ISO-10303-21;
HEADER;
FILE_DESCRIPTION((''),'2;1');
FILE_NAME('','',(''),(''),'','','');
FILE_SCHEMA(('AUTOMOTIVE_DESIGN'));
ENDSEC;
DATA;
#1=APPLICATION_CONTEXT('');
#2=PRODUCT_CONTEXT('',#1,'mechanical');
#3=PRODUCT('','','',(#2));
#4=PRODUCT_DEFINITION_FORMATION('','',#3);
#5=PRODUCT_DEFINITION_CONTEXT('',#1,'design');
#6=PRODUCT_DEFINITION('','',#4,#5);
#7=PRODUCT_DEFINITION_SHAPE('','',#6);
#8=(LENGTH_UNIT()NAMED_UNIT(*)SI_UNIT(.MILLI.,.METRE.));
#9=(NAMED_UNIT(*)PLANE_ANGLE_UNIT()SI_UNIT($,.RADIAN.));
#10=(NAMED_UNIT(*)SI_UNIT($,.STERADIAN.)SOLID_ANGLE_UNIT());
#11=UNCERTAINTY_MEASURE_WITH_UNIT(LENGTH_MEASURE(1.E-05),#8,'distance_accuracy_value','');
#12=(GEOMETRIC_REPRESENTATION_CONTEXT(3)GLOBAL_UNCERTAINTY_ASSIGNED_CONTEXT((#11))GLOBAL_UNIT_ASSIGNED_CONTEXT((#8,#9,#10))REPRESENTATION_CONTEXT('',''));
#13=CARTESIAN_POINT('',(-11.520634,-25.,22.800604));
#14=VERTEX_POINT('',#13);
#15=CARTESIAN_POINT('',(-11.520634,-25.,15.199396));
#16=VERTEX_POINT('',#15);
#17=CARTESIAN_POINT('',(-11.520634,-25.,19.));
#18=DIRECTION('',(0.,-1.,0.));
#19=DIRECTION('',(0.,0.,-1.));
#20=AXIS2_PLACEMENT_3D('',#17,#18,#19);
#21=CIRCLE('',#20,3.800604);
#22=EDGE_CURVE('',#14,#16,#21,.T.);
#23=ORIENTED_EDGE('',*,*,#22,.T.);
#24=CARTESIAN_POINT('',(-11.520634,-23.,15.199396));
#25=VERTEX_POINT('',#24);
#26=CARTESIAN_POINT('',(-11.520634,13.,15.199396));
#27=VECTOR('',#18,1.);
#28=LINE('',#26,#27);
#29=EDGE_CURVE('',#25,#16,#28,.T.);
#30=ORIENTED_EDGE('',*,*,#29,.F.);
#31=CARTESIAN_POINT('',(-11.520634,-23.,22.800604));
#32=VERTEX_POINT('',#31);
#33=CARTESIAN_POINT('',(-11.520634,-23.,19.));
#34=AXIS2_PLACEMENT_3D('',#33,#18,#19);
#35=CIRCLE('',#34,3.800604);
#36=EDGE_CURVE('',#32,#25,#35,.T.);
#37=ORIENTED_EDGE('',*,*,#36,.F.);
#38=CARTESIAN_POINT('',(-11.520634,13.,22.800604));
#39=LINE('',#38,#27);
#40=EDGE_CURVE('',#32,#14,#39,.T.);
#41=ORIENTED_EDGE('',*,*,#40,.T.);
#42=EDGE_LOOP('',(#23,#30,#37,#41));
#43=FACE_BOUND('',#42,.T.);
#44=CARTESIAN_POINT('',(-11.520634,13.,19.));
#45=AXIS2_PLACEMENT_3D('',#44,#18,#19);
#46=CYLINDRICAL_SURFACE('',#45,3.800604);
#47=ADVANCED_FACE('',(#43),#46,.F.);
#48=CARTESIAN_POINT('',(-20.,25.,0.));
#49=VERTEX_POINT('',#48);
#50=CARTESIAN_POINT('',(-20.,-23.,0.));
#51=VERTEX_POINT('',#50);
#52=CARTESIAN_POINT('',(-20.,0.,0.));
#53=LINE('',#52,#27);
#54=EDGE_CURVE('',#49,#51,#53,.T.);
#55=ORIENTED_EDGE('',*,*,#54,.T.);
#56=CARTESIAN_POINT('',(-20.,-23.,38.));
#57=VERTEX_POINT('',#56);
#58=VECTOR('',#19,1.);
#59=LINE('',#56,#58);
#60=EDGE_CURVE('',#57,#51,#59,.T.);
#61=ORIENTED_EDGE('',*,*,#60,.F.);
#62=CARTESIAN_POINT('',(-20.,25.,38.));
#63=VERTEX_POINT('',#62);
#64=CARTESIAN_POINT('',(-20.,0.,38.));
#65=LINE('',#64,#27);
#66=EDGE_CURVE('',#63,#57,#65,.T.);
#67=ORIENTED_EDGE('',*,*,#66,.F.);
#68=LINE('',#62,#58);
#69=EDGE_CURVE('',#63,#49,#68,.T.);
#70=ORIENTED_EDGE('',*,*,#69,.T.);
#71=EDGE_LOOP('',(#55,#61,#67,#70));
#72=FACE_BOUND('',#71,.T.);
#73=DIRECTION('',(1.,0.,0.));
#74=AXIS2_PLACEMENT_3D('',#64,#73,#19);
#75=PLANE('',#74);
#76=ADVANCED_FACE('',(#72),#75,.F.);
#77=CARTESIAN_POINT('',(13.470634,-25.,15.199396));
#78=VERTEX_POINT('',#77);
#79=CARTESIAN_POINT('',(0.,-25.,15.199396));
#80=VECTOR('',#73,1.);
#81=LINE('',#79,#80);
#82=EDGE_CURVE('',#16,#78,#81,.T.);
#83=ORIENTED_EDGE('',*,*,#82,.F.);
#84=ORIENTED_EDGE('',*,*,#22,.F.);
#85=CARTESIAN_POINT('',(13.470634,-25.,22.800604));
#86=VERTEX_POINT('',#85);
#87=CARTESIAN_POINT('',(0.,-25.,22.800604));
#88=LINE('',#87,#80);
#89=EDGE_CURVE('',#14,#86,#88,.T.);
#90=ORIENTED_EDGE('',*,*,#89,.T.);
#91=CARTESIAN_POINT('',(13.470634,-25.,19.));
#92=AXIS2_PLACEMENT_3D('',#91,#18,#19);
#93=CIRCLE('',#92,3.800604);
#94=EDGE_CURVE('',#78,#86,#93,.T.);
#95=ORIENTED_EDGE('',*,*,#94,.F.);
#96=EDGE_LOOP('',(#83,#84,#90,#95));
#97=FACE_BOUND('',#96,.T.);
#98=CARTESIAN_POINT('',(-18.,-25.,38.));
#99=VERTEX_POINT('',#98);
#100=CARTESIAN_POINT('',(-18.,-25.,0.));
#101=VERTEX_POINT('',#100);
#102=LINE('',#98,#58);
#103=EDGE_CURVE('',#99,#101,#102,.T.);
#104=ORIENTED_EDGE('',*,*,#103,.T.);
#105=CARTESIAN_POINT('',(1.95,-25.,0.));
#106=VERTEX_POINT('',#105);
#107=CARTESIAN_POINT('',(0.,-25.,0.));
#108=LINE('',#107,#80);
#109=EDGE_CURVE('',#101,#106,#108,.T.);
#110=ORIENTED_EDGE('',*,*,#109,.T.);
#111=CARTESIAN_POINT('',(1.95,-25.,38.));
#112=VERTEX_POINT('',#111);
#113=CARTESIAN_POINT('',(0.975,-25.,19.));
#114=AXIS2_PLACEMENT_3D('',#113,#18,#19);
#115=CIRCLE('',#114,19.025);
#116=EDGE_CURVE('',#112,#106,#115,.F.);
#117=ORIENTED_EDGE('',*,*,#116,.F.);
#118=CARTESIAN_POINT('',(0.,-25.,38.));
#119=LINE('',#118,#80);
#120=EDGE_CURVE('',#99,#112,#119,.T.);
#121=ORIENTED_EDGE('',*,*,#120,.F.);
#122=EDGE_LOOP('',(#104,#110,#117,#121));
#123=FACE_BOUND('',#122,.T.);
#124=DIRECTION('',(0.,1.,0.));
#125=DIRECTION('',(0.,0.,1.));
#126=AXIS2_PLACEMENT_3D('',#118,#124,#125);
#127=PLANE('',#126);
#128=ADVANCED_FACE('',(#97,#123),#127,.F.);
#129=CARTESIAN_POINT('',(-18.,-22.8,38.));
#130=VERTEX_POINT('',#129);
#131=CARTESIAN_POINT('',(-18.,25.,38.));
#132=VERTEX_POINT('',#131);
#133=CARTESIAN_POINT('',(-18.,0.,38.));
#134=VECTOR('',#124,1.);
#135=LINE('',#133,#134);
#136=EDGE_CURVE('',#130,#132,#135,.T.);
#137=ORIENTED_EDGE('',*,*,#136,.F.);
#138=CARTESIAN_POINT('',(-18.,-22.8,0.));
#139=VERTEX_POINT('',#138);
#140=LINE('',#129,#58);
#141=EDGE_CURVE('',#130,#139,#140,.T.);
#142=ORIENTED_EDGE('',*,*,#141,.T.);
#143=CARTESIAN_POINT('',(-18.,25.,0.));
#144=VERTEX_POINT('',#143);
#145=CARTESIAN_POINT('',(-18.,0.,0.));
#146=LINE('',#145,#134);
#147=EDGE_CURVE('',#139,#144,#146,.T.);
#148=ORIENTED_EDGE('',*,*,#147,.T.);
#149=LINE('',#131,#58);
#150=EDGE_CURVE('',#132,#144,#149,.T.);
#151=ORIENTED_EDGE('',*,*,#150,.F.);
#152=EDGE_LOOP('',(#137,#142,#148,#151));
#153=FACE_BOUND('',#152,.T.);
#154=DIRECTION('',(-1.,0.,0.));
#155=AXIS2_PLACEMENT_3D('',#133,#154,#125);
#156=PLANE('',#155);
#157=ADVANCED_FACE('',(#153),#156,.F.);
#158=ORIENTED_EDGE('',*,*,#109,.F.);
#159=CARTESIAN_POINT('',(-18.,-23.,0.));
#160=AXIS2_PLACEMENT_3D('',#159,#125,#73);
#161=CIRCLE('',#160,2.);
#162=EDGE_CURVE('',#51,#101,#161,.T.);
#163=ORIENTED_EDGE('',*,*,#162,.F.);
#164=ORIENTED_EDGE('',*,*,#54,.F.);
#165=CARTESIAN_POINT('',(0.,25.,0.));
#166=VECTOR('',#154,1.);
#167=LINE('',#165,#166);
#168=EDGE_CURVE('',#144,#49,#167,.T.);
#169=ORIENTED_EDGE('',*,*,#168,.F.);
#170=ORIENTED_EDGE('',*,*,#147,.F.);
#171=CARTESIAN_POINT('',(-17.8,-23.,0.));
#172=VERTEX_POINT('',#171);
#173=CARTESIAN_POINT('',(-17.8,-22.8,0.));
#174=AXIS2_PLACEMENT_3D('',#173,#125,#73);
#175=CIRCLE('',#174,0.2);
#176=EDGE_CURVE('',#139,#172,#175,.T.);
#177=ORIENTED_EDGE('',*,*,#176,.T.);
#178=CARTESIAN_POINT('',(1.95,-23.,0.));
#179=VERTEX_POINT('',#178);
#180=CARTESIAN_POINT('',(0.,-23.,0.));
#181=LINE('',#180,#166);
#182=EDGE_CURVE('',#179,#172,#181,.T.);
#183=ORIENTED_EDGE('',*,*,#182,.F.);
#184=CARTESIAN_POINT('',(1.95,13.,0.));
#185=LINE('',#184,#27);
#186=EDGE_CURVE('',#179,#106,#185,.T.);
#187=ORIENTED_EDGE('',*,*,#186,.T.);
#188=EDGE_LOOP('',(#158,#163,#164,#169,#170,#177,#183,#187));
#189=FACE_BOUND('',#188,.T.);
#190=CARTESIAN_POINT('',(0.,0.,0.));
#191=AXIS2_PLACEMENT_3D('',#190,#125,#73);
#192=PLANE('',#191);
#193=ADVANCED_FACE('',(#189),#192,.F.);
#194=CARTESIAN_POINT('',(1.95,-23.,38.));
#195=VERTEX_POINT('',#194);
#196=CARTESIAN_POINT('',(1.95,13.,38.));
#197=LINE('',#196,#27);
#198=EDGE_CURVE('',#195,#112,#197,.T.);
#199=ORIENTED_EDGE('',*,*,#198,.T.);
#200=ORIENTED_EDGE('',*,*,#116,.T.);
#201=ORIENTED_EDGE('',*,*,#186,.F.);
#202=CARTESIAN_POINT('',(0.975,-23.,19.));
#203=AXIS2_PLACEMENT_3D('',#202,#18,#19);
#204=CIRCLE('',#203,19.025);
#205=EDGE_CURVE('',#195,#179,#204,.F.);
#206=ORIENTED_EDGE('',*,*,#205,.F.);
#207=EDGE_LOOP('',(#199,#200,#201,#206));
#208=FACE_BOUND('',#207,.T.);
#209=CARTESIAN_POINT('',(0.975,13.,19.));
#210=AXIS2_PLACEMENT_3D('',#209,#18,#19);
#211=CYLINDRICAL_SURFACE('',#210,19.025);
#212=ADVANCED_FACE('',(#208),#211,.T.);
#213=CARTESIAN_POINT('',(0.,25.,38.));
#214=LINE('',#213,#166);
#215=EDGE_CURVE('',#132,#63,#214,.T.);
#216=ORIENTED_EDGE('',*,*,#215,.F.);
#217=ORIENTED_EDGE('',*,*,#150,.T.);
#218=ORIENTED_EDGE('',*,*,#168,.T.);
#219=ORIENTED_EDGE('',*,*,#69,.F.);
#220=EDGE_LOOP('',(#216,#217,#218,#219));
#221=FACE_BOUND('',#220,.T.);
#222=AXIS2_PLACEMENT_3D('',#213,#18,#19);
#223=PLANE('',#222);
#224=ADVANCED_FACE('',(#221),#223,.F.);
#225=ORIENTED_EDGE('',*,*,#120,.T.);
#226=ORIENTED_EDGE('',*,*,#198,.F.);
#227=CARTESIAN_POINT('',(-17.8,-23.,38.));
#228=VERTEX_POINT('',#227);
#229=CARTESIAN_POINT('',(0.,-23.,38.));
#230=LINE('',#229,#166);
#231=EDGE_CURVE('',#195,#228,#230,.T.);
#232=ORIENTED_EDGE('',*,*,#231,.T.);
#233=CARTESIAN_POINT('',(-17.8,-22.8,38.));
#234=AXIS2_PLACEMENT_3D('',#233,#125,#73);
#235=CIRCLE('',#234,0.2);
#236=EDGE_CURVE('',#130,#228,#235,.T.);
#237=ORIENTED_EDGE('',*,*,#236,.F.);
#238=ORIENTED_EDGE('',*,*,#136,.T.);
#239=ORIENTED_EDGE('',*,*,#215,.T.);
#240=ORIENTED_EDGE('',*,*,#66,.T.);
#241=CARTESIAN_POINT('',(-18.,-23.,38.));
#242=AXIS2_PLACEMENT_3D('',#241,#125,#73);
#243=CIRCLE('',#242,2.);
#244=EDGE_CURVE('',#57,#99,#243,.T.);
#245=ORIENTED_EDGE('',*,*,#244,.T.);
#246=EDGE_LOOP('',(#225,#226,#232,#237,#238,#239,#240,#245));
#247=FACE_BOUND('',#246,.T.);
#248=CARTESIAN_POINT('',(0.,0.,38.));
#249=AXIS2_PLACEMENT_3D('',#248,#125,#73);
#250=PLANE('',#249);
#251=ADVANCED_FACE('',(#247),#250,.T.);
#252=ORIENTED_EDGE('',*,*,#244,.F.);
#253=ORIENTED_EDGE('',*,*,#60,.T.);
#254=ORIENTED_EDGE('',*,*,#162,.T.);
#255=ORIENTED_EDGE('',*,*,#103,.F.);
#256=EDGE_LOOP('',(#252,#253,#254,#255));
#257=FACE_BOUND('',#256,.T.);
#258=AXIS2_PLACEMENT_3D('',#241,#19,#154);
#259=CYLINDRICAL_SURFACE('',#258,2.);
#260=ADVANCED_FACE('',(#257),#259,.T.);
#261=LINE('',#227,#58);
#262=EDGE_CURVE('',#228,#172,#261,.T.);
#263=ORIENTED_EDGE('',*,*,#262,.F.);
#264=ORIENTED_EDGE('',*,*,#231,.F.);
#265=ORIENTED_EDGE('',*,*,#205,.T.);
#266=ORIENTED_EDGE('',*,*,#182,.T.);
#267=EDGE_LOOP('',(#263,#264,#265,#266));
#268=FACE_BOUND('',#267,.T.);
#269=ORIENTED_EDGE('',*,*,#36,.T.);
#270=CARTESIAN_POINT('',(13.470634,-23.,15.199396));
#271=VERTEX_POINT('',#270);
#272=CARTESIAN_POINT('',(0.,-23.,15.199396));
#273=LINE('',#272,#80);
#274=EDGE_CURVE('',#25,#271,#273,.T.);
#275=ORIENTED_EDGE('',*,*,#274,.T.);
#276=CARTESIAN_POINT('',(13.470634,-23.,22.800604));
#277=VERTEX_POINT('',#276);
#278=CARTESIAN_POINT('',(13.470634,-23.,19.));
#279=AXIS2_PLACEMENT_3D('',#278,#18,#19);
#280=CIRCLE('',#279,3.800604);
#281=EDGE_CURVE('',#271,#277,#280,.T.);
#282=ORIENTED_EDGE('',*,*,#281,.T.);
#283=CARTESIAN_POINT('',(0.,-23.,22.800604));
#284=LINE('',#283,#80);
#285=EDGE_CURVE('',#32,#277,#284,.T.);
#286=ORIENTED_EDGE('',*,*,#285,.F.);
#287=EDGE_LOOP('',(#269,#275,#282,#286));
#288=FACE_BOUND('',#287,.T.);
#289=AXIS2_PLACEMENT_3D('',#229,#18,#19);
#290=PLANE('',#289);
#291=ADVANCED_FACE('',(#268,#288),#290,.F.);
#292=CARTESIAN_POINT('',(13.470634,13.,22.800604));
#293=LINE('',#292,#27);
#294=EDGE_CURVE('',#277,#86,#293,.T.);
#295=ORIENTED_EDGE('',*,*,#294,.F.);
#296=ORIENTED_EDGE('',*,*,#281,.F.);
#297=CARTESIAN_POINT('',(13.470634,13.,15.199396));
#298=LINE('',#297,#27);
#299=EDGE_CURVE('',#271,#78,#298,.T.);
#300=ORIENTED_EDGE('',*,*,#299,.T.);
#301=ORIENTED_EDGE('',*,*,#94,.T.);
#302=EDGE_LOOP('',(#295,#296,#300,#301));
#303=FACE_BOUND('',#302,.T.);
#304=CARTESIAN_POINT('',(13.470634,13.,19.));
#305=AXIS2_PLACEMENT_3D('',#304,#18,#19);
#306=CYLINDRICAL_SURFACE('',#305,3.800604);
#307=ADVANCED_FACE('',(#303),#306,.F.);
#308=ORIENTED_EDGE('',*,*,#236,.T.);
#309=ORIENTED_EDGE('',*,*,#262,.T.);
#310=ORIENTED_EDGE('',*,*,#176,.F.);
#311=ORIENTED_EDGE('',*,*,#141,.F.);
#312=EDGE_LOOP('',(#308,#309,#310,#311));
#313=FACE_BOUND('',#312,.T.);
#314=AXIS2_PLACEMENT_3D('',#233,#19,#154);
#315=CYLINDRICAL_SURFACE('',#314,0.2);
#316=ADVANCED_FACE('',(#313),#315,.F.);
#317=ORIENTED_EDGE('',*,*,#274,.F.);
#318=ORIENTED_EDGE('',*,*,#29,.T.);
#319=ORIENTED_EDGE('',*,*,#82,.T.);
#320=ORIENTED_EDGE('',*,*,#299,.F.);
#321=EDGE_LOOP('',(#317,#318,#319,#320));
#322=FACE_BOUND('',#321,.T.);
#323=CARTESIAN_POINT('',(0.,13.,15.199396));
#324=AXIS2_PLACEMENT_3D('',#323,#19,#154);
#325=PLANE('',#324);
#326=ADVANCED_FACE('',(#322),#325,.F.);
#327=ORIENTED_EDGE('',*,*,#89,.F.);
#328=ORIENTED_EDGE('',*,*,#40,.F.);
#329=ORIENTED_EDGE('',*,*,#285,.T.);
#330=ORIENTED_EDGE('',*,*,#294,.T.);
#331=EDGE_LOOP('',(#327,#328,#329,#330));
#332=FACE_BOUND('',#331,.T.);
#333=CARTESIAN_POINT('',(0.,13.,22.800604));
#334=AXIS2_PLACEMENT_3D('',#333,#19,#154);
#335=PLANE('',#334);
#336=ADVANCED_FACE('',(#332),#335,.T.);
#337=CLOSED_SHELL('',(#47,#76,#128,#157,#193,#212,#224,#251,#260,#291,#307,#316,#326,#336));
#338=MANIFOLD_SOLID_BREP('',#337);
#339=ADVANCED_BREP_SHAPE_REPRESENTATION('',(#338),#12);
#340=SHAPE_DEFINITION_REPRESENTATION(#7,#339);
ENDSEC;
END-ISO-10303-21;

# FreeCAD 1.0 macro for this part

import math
import FreeCAD as App
import Part
import Sketcher
Q = App.Units.Quantity

doc = App.newDocument("Part")
body = doc.addObject("PartDesign::Body", "Body")

# Sketch on XY plane
sketch1 = body.newObject("Sketcher::SketchObject", "Sketch")
sketch1.AttachmentSupport = (doc.getObject("XY_Plane"), [""])
sketch1.MapMode = "FlatFace"
sketch1.addGeometry([
    Part.ArcOfCircle(Part.Circle(App.Vector(-17.8, -22.8, 0), App.Vector(0, 0, 1), 0.2), math.radians(180), math.radians(270)),  # 0
    Part.LineSegment(App.Vector(-18, -22.8, 0), App.Vector(-18, 25, 0)),  # 1
    Part.LineSegment(App.Vector(-18, 25, 0), App.Vector(-20, 25, 0)),  # 2
    Part.LineSegment(App.Vector(-20, 25, 0), App.Vector(-20, -23, 0)),  # 3
    Part.ArcOfCircle(Part.Circle(App.Vector(-18, -23, 0), App.Vector(0, 0, 1), 2), math.radians(180), math.radians(270)),  # 4
    Part.LineSegment(App.Vector(-18, -25, 0), App.Vector(20, -25, 0)),  # 5
    Part.LineSegment(App.Vector(20, -25, 0), App.Vector(20, -23, 0)),  # 6
    Part.LineSegment(App.Vector(20, -23, 0), App.Vector(-17.8, -23, 0)),  # 7
], False)
sketch1.addConstraint([
    Sketcher.Constraint("Tangent", 0, 1, 1, 1),
    Sketcher.Constraint("Coincident", 1, 2, 2, 1),
    Sketcher.Constraint("Coincident", 2, 2, 3, 1),
    Sketcher.Constraint("Tangent", 3, 2, 4, 1),
    Sketcher.Constraint("Tangent", 4, 2, 5, 1),
    Sketcher.Constraint("Coincident", 5, 2, 6, 1),
    Sketcher.Constraint("Coincident", 6, 2, 7, 1),
    Sketcher.Constraint("Tangent", 7, 2, 0, 2),
    Sketcher.Constraint("Vertical", 1),
    Sketcher.Constraint("Horizontal", 2),
    Sketcher.Constraint("Vertical", 3),
    Sketcher.Constraint("Horizontal", 5),
    Sketcher.Constraint("Vertical", 6),
    Sketcher.Constraint("Horizontal", 7),
    Sketcher.Constraint("Symmetric", 2, 2, 5, 2, -1, 1),
    Sketcher.Constraint("Horizontal", 3, 2, 6, 2),
    Sketcher.Constraint("Vertical", 4, 3, 0, 1),
    Sketcher.Constraint("Radius", 4, Q("2 mm")),
    Sketcher.Constraint("Radius", 0, Q("0.2 mm")),
    Sketcher.Constraint("DistanceX", 5, 1, 5, 2, Q("38 mm")),
    Sketcher.Constraint("DistanceY", 3, 2, 3, 1, Q("48 mm")),
])
pad1 = body.newObject("PartDesign::Pad", "Pad")
pad1.Profile = sketch1
pad1.Length = 38

# Sketch on XZ plane
sketch2 = body.newObject("Sketcher::SketchObject", "Sketch001")
sketch2.AttachmentSupport = (doc.getObject("XZ_Plane"), [""])
sketch2.MapMode = "FlatFace"
sketch2.AttachmentOffset = App.Placement(App.Vector(0, 0, 25), App.Rotation())
sketch2.addGeometry([
    Part.LineSegment(App.Vector(20, 0, 0), App.Vector(20, 19, 0)),  # 0
    Part.ArcOfCircle(Part.Circle(App.Vector(0.975, 19, 0), App.Vector(0, 0, 1), 19.025), math.radians(-87.062398), math.radians(0)),  # 1
    Part.LineSegment(App.Vector(1.95, 0, 0), App.Vector(20, 0, 0)),  # 2
    Part.LineSegment(App.Vector(20, 38, 0), App.Vector(1.95, 38, 0)),  # 3
    Part.ArcOfCircle(Part.Circle(App.Vector(0.975, 19, 0), App.Vector(0, 0, 1), 19.025), math.radians(0), math.radians(87.062398)),  # 4
    Part.LineSegment(App.Vector(20, 19, 0), App.Vector(20, 38, 0)),  # 5
    Part.LineSegment(App.Vector(13.470634, 22.800604, 0), App.Vector(-11.520634, 22.800604, 0)),  # 6
    Part.ArcOfCircle(Part.Circle(App.Vector(-11.520634, 19, 0), App.Vector(0, 0, 1), 3.800604), math.radians(90), math.radians(270)),  # 7
    Part.LineSegment(App.Vector(-11.520634, 15.199396, 0), App.Vector(13.470634, 15.199396, 0)),  # 8
    Part.ArcOfCircle(Part.Circle(App.Vector(13.470634, 19, 0), App.Vector(0, 0, 1), 3.800604), math.radians(-90), math.radians(90)),  # 9
], False)
sketch2.addConstraint([
    Sketcher.Constraint("Tangent", 0, 2, 1, 2),
    Sketcher.Constraint("Coincident", 1, 1, 2, 1),
    Sketcher.Constraint("Coincident", 2, 2, 0, 1),
    Sketcher.Constraint("Coincident", 3, 2, 4, 2),
    Sketcher.Constraint("Tangent", 4, 1, 5, 1),
    Sketcher.Constraint("Coincident", 5, 2, 3, 1),
    Sketcher.Constraint("Tangent", 6, 2, 7, 1),
    Sketcher.Constraint("Tangent", 7, 2, 8, 1),
    Sketcher.Constraint("Tangent", 8, 2, 9, 1),
    Sketcher.Constraint("Tangent", 9, 2, 6, 1),
    Sketcher.Constraint("Vertical", 0),
    Sketcher.Constraint("Horizontal", 2),
    Sketcher.Constraint("Horizontal", 3),
    Sketcher.Constraint("Vertical", 5),
    Sketcher.Constraint("Horizontal", 6),
    Sketcher.Constraint("Horizontal", 8),
    Sketcher.Constraint("Coincident", 4, 3, 1, 3),
    Sketcher.Constraint("Equal", 1, 4),
    Sketcher.Constraint("PointOnObject", 1, 1, -1),
    Sketcher.Constraint("Horizontal", 4, 3, 7, 3),
    Sketcher.Constraint("Vertical", 1, 1, 3, 2),
    Sketcher.Constraint("DistanceY", 0, 1, 0, 2, Q("19 mm")),
    Sketcher.Constraint("DistanceX", -1, 1, 0, 2, Q("20 mm")),
    Sketcher.Constraint("Radius", 1, Q("19.025 mm")),
    Sketcher.Constraint("Radius", 7, Q("3.800604 mm")),
    Sketcher.Constraint("DistanceX", 6, 2, 6, 1, Q("24.991268 mm")),
    Sketcher.Constraint("DistanceX", 7, 3, -1, 1, Q("11.520634 mm")),
])
pocket1 = body.newObject("PartDesign::Pocket", "Pocket")
pocket1.Profile = sketch2
pocket1.Length = 38

doc.recompute()
